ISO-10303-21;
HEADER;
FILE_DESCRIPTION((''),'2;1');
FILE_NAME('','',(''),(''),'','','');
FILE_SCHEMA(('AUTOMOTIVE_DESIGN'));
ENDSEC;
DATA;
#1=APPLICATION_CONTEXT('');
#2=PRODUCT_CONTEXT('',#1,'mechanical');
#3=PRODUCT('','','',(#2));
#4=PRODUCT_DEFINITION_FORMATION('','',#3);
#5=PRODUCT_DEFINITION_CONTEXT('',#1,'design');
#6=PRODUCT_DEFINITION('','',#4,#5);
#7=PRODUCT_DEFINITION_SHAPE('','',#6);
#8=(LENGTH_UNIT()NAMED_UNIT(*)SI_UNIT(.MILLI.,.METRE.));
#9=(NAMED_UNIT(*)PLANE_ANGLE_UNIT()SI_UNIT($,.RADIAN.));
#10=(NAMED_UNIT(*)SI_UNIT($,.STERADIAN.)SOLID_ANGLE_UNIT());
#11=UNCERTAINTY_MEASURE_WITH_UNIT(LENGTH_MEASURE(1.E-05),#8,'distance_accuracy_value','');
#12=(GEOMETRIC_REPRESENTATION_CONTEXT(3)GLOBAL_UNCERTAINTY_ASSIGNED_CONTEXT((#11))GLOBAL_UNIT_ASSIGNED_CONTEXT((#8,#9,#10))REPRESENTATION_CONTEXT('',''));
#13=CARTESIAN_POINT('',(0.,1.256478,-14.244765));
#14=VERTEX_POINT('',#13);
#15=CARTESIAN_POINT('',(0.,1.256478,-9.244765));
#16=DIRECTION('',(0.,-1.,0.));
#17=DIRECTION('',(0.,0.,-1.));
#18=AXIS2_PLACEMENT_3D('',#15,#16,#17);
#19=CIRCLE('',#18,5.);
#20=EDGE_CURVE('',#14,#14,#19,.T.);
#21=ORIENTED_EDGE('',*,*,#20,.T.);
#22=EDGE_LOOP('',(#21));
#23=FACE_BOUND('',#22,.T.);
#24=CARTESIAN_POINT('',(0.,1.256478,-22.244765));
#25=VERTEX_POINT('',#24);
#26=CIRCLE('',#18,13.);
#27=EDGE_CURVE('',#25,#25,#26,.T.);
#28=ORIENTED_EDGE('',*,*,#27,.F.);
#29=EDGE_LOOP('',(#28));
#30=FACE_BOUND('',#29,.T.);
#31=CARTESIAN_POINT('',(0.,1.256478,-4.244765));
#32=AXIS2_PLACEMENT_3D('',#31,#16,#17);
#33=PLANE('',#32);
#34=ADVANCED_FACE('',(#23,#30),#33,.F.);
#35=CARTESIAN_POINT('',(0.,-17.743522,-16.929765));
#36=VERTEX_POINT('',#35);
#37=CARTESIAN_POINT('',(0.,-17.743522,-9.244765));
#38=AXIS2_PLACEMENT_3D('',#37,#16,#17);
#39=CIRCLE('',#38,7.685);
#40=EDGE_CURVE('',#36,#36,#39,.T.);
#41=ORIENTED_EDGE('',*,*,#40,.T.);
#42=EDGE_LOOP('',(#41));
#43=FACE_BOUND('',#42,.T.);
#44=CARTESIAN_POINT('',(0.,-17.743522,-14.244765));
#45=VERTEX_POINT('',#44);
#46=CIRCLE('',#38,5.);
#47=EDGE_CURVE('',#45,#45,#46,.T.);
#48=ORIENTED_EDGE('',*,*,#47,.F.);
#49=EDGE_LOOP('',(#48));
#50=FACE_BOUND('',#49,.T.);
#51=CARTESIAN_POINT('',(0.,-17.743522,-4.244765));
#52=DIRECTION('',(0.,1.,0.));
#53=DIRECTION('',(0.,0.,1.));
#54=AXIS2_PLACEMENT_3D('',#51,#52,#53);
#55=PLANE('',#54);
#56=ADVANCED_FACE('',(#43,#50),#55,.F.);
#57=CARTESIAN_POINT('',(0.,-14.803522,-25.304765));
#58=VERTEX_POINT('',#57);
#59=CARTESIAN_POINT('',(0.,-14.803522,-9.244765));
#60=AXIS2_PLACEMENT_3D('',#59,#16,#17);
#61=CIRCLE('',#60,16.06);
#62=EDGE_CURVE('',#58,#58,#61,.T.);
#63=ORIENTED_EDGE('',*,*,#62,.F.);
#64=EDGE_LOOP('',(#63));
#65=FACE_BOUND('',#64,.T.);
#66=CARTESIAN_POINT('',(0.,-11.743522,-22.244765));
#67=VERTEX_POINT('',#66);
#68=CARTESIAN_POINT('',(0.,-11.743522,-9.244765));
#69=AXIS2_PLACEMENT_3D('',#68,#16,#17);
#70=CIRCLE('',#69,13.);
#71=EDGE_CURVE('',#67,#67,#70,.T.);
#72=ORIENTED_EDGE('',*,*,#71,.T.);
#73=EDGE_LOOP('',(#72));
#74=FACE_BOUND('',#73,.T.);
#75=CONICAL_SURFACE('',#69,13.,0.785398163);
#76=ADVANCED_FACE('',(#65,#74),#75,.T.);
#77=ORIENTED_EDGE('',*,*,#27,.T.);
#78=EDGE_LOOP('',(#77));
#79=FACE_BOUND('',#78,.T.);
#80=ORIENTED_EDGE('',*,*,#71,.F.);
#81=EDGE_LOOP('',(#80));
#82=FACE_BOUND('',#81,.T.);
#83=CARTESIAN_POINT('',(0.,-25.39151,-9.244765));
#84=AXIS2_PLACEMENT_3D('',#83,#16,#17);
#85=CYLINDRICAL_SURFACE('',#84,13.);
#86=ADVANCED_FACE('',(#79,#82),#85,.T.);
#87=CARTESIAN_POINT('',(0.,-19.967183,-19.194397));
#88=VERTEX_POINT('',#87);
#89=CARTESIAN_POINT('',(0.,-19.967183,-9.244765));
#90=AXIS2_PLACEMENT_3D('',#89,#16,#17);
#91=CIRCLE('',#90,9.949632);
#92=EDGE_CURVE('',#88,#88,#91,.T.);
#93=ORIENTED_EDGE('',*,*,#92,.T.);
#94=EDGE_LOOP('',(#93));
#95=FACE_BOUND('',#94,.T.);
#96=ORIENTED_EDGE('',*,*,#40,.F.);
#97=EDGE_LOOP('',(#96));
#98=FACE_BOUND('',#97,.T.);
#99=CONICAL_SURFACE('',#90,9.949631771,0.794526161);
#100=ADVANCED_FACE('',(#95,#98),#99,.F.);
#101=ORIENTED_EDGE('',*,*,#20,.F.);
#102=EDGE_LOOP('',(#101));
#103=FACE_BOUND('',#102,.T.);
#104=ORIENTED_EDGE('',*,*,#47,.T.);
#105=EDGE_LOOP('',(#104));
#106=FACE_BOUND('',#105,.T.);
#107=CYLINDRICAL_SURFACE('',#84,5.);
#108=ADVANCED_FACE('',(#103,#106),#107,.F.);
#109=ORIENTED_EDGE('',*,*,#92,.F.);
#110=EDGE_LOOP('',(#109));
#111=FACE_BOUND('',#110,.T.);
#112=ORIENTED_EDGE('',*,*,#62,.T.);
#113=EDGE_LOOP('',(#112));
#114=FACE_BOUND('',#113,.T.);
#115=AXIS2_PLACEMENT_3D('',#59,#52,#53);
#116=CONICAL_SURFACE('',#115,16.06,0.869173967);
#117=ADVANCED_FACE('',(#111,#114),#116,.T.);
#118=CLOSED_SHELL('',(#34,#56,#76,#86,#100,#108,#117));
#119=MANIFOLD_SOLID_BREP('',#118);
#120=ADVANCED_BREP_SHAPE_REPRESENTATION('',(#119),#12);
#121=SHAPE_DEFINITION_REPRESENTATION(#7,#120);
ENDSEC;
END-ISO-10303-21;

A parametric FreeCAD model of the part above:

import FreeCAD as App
import Part
import Sketcher
from FreeCAD import Vector
Q = App.Units.Quantity


def add_polygon(sketch, points):
    """Adds a closed chain of lines whose ends are joined by coincident constraints."""
    first, n = sketch.GeometryCount, len(points)
    for a, b in zip(points, points[1:] + points[:1]):
        sketch.addGeometry(Part.LineSegment(App.Vector(*a, 0), App.Vector(*b, 0)), False)
    for i in range(n):
        sketch.addConstraint(Sketcher.Constraint("Coincident", first + i, 2, first + (i + 1) % n, 1))

doc = App.newDocument("Part")
body = doc.addObject("PartDesign::Body", "Body")

# Sketch on YZ plane
sketch1 = body.newObject("Sketcher::SketchObject", "Sketch")
sketch1.AttachmentSupport = (doc.getObject("YZ_Plane"), [""])
sketch1.MapMode = "FlatFace"
add_polygon(sketch1, [(-11.743522, 3.755235), (-14.803522, 6.815235), (-19.967183, 0.704867), (-17.743522, -1.559765), (-17.743522, -4.244765), (1.256478, -4.244765), (1.256478, 3.755235)])  # lines 0-6
sketch1.addGeometry(Part.LineSegment(Vector(-19.967183, -9.244765, 0), Vector(1.256478, -9.244765, 0)), True)  # axis
sketch1.addConstraint(Sketcher.Constraint("Vertical", 3))
sketch1.addConstraint(Sketcher.Constraint("Horizontal", 4))
sketch1.addConstraint(Sketcher.Constraint("Vertical", 5))
sketch1.addConstraint(Sketcher.Constraint("Horizontal", 6))
sketch1.addConstraint(Sketcher.Constraint("Horizontal", 7))
sketch1.addConstraint(Sketcher.Constraint("Vertical", 1, 2, 7, 1))
sketch1.addConstraint(Sketcher.Constraint("Vertical", 5, 2, 7, 2))
sketch1.addConstraint(Sketcher.Constraint("DistanceX", 4, 1, 4, 2, 19.0))
sketch1.addConstraint(Sketcher.Constraint("DistanceX", 6, 2, 6, 1, 13.0))
sketch1.addConstraint(Sketcher.Constraint("DistanceY", 5, 1, 5, 2, 8.0))
sketch1.addConstraint(Sketcher.Constraint("Angle", 0, Q("135 deg")))
sketch1.addConstraint(Sketcher.Constraint("Distance", 1, 8.0))
sketch1.addConstraint(Sketcher.Constraint("Angle", 1, Q("-130.2 deg")))
sketch1.addConstraint(Sketcher.Constraint("DistanceY", 7, 1, 3, 2, 5.0))
sketch1.addConstraint(Sketcher.Constraint("DistanceY", 3, 2, 3, 1, 2.685))
sketch1.addConstraint(Sketcher.Constraint("DistanceX", 2, 2, 0, 2, 2.94))
sketch1.addConstraint(Sketcher.Constraint("DistanceX", 0, 2, -1, 1, 14.803522))
sketch1.addConstraint(Sketcher.Constraint("DistanceY", -1, 1, 0, 2, 6.815235))
revolution = body.newObject("PartDesign::Revolution", "Revolution")
revolution.Profile = sketch1
revolution.ReferenceAxis = (sketch1, ["Axis0"])
revolution.Angle = 360

doc.recompute()
